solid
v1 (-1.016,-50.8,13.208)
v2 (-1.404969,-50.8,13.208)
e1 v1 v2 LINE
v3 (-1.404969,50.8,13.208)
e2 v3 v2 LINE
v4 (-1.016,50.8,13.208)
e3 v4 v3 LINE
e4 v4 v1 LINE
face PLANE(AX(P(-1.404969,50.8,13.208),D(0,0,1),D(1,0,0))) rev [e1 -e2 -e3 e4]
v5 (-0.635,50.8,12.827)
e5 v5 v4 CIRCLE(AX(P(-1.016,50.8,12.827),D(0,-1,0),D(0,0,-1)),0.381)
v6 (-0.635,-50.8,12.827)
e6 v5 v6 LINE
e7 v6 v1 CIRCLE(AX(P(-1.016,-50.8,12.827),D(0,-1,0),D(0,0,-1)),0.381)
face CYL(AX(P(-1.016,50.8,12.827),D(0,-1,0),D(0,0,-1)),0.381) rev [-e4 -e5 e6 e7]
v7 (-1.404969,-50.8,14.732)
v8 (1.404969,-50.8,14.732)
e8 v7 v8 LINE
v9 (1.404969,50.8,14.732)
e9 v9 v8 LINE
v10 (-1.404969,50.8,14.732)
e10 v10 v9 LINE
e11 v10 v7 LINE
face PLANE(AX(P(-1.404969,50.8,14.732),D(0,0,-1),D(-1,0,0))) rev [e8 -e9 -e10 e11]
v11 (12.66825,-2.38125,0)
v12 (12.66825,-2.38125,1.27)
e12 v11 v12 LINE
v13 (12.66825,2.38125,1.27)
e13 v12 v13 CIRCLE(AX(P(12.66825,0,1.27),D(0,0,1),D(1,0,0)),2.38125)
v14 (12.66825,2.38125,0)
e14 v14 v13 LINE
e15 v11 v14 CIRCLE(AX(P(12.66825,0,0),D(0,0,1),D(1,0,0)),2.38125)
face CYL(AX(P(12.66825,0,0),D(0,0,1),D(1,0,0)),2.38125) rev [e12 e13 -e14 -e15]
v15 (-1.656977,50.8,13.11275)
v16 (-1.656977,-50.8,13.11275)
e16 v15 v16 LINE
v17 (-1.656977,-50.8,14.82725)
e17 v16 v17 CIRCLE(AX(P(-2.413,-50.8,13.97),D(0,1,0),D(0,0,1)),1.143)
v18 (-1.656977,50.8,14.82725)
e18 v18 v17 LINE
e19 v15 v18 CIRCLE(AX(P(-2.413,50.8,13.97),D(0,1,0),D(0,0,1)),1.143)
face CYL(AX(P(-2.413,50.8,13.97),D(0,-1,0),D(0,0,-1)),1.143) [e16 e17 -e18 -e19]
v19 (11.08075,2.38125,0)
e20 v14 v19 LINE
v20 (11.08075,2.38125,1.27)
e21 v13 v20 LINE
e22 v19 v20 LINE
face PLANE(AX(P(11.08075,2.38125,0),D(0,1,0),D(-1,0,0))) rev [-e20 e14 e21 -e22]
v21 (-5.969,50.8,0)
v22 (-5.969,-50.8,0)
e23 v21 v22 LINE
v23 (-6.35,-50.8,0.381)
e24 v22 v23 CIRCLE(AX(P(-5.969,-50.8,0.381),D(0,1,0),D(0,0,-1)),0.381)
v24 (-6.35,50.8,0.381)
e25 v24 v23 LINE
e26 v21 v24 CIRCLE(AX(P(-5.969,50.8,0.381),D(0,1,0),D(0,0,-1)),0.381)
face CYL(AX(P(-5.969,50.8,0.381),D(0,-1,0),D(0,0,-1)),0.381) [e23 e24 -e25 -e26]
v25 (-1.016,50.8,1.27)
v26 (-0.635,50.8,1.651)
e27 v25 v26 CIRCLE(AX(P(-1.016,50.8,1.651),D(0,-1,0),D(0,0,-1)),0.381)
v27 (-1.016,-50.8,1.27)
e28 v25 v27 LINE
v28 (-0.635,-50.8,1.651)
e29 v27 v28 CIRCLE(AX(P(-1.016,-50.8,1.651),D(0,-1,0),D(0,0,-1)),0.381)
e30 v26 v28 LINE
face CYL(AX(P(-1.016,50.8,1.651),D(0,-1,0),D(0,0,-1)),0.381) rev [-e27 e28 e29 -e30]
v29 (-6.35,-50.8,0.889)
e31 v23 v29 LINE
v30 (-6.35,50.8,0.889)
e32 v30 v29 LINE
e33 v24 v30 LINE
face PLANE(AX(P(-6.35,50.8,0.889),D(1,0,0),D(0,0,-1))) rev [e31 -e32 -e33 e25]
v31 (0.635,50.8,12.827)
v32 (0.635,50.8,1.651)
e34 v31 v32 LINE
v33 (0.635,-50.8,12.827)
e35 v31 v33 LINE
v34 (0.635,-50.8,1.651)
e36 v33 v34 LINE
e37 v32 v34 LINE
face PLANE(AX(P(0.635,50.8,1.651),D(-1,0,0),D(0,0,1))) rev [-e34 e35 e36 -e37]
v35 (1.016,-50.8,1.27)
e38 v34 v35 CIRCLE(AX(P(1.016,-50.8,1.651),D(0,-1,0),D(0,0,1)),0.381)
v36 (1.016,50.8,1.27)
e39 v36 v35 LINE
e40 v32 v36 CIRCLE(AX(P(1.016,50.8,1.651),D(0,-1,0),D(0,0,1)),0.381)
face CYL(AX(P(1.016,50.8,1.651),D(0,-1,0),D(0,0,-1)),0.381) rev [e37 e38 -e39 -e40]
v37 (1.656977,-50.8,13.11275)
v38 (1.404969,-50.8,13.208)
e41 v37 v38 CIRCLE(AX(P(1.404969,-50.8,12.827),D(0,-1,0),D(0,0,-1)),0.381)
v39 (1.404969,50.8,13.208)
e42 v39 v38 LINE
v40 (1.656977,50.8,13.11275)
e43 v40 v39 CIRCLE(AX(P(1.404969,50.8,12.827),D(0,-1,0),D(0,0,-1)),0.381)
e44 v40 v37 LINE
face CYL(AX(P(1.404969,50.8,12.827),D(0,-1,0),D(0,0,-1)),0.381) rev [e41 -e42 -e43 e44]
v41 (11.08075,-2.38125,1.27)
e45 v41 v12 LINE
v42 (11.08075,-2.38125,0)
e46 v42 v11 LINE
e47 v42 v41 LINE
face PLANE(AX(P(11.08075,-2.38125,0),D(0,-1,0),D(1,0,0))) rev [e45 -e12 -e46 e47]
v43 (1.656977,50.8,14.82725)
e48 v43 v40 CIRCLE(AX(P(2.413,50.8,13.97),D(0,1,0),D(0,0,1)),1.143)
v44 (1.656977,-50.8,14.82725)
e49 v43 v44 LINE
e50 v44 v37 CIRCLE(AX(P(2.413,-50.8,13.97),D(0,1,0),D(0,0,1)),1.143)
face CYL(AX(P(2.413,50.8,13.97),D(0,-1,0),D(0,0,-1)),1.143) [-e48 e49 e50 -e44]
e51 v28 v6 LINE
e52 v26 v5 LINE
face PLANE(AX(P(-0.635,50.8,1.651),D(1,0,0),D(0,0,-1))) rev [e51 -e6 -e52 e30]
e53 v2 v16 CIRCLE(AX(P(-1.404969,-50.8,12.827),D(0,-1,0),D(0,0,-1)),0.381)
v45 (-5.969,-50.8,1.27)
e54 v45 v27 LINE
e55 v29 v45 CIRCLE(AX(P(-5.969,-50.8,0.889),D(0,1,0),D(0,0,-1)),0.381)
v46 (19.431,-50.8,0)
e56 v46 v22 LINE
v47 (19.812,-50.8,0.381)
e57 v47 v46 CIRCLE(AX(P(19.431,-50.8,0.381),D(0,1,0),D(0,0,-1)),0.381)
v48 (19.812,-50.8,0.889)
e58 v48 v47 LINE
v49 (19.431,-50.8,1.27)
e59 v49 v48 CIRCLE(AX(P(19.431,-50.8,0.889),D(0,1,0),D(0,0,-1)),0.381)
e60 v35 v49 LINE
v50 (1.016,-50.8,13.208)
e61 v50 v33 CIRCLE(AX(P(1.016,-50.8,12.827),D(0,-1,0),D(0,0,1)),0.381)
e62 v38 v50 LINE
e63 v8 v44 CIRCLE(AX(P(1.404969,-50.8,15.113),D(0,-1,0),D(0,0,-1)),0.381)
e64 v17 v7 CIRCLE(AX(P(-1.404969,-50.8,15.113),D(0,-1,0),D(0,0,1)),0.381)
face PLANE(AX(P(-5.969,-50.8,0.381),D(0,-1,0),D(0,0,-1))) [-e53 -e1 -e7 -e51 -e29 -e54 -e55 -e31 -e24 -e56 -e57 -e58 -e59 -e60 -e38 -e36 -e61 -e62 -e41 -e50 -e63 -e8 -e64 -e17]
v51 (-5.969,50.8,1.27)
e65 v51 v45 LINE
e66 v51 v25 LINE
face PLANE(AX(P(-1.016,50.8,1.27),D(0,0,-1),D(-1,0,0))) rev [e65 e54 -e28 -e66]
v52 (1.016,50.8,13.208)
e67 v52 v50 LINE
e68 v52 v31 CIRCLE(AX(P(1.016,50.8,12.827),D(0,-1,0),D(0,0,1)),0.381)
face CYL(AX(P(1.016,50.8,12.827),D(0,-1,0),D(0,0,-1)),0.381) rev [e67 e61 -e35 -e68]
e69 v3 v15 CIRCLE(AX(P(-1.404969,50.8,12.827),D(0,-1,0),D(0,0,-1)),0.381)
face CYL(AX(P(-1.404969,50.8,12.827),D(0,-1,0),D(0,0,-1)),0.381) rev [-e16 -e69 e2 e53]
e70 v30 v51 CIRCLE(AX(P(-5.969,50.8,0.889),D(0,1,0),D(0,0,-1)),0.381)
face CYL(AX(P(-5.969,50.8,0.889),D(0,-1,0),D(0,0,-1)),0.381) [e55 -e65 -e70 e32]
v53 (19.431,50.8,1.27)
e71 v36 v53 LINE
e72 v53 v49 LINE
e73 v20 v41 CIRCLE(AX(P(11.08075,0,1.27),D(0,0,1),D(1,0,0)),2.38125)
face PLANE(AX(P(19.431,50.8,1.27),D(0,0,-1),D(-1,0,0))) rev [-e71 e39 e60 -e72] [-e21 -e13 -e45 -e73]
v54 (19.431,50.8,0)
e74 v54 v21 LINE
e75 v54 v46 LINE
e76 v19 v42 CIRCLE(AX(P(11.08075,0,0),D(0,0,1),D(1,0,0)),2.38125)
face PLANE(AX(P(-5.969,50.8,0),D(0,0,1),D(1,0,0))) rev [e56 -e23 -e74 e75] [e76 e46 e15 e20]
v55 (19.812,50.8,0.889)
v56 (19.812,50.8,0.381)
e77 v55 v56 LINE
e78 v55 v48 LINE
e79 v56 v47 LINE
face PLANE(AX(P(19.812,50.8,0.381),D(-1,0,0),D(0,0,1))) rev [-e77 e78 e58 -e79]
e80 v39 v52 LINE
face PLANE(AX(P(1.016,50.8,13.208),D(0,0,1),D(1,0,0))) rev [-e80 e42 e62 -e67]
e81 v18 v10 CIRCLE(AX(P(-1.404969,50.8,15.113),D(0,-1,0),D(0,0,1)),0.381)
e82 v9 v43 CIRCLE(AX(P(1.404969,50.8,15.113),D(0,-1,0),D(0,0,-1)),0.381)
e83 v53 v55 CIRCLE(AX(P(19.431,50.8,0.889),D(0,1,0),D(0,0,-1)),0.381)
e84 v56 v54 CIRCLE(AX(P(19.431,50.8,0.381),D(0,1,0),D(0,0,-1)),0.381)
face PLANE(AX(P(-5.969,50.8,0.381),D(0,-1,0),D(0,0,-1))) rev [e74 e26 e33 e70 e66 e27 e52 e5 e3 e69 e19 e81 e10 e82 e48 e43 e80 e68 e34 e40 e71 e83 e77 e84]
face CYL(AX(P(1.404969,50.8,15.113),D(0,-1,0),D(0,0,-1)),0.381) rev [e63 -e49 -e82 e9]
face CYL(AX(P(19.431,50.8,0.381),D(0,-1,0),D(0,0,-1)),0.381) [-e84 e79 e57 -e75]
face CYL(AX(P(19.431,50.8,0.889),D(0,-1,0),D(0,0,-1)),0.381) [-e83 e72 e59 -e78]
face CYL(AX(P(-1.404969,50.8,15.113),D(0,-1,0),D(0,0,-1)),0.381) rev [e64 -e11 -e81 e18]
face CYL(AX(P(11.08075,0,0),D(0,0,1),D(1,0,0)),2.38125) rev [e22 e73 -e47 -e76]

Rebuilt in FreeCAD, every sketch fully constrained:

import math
import FreeCAD as App
import Part
import Sketcher

V = App.Vector
Q = App.Units.Quantity

doc = App.newDocument("Part")
body = doc.addObject("PartDesign::Body", "Body")

# Sketch on XZ plane
sketch1 = body.newObject("Sketcher::SketchObject", "Sketch")
sketch1.AttachmentSupport = (doc.getObject("XZ_Plane"), [""])
sketch1.MapMode = "FlatFace"
sketch1.addGeometry(Part.LineSegment(V(19.431, 0, 0), V(-5.969, 0, 0)), False)
sketch1.addGeometry(Part.ArcOfCircle(Part.Circle(V(-5.969, 0.381, 0), V(0, 0, 1), 0.381), math.radians(180), math.radians(270)), False)
sketch1.addGeometry(Part.LineSegment(V(-6.35, 0.381, 0), V(-6.35, 0.889, 0)), False)
sketch1.addGeometry(Part.ArcOfCircle(Part.Circle(V(-5.969, 0.889, 0), V(0, 0, 1), 0.381), math.radians(90), math.radians(180)), False)
sketch1.addGeometry(Part.LineSegment(V(-5.969, 1.27, 0), V(-1.016, 1.27, 0)), False)
sketch1.addGeometry(Part.ArcOfCircle(Part.Circle(V(-1.016, 1.651, 0), V(0, 0, 1), 0.381), math.radians(-90), math.radians(0)), False)
sketch1.addGeometry(Part.LineSegment(V(-0.635, 1.651, 0), V(-0.635, 12.827, 0)), False)
sketch1.addGeometry(Part.ArcOfCircle(Part.Circle(V(-1.016, 12.827, 0), V(0, 0, 1), 0.381), math.radians(0), math.radians(90)), False)
sketch1.addGeometry(Part.LineSegment(V(-1.016, 13.208, 0), V(-1.404969, 13.208, 0)), False)
sketch1.addGeometry(Part.ArcOfCircle(Part.Circle(V(-1.404969, 12.827, 0), V(0, 0, 1), 0.381), math.radians(90), math.radians(131.409622)), False)
sketch1.addGeometry(Part.ArcOfCircle(Part.Circle(V(-2.413, 13.97, 0), V(0, 0, 1), 1.143), math.radians(48.590378), math.radians(311.409622)), False)
sketch1.addGeometry(Part.ArcOfCircle(Part.Circle(V(-1.404969, 15.113, 0), V(0, 0, 1), 0.381), math.radians(-131.409622), math.radians(-90)), False)
sketch1.addGeometry(Part.LineSegment(V(-1.404969, 14.732, 0), V(1.404969, 14.732, 0)), False)
sketch1.addGeometry(Part.ArcOfCircle(Part.Circle(V(1.404969, 15.113, 0), V(0, 0, 1), 0.381), math.radians(-90), math.radians(-48.590378)), False)
sketch1.addGeometry(Part.ArcOfCircle(Part.Circle(V(2.413, 13.97, 0), V(0, 0, 1), 1.143), math.radians(-131.409622), math.radians(131.409622)), False)
sketch1.addGeometry(Part.ArcOfCircle(Part.Circle(V(1.404969, 12.827, 0), V(0, 0, 1), 0.381), math.radians(48.590378), math.radians(90)), False)
sketch1.addGeometry(Part.LineSegment(V(1.404969, 13.208, 0), V(1.016, 13.208, 0)), False)
sketch1.addGeometry(Part.ArcOfCircle(Part.Circle(V(1.016, 12.827, 0), V(0, 0, 1), 0.381), math.radians(90), math.radians(180)), False)
sketch1.addGeometry(Part.LineSegment(V(0.635, 12.827, 0), V(0.635, 1.651, 0)), False)
sketch1.addGeometry(Part.ArcOfCircle(Part.Circle(V(1.016, 1.651, 0), V(0, 0, 1), 0.381), math.radians(180), math.radians(270)), False)
sketch1.addGeometry(Part.LineSegment(V(1.016, 1.27, 0), V(19.431, 1.27, 0)), False)
sketch1.addGeometry(Part.ArcOfCircle(Part.Circle(V(19.431, 0.889, 0), V(0, 0, 1), 0.381), math.radians(0), math.radians(90)), False)
sketch1.addGeometry(Part.LineSegment(V(19.812, 0.889, 0), V(19.812, 0.381, 0)), False)
sketch1.addGeometry(Part.ArcOfCircle(Part.Circle(V(19.431, 0.381, 0), V(0, 0, 1), 0.381), math.radians(-90), math.radians(0)), False)
sketch1.addConstraint(Sketcher.Constraint("Tangent", 0, 2, 1, 2))
sketch1.addConstraint(Sketcher.Constraint("Tangent", 1, 1, 2, 1))
sketch1.addConstraint(Sketcher.Constraint("Tangent", 2, 2, 3, 2))
sketch1.addConstraint(Sketcher.Constraint("Tangent", 3, 1, 4, 1))
sketch1.addConstraint(Sketcher.Constraint("Tangent", 4, 2, 5, 1))
sketch1.addConstraint(Sketcher.Constraint("Tangent", 5, 2, 6, 1))
sketch1.addConstraint(Sketcher.Constraint("Tangent", 6, 2, 7, 1))
sketch1.addConstraint(Sketcher.Constraint("Tangent", 7, 2, 8, 1))
sketch1.addConstraint(Sketcher.Constraint("Tangent", 8, 2, 9, 1))
sketch1.addConstraint(Sketcher.Constraint("Tangent", 9, 2, 10, 2))
sketch1.addConstraint(Sketcher.Constraint("Tangent", 10, 1, 11, 1))
sketch1.addConstraint(Sketcher.Constraint("Tangent", 11, 2, 12, 1))
sketch1.addConstraint(Sketcher.Constraint("Tangent", 12, 2, 13, 1))
sketch1.addConstraint(Sketcher.Constraint("Tangent", 13, 2, 14, 2))
sketch1.addConstraint(Sketcher.Constraint("Tangent", 14, 1, 15, 1))
sketch1.addConstraint(Sketcher.Constraint("Tangent", 15, 2, 16, 1))
sketch1.addConstraint(Sketcher.Constraint("Tangent", 16, 2, 17, 1))
sketch1.addConstraint(Sketcher.Constraint("Tangent", 17, 2, 18, 1))
sketch1.addConstraint(Sketcher.Constraint("Tangent", 18, 2, 19, 1))
sketch1.addConstraint(Sketcher.Constraint("Tangent", 19, 2, 20, 1))
sketch1.addConstraint(Sketcher.Constraint("Tangent", 20, 2, 21, 2))
sketch1.addConstraint(Sketcher.Constraint("Tangent", 21, 1, 22, 1))
sketch1.addConstraint(Sketcher.Constraint("Tangent", 22, 2, 23, 2))
sketch1.addConstraint(Sketcher.Constraint("Tangent", 23, 1, 0, 1))
sketch1.addConstraint(Sketcher.Constraint("Horizontal", 0))
sketch1.addConstraint(Sketcher.Constraint("Vertical", 2))
sketch1.addConstraint(Sketcher.Constraint("Horizontal", 4))
sketch1.addConstraint(Sketcher.Constraint("Vertical", 6))
sketch1.addConstraint(Sketcher.Constraint("Horizontal", 8))
sketch1.addConstraint(Sketcher.Constraint("Horizontal", 12))
sketch1.addConstraint(Sketcher.Constraint("Horizontal", 16))
sketch1.addConstraint(Sketcher.Constraint("Vertical", 18))
sketch1.addConstraint(Sketcher.Constraint("Horizontal", 20))
sketch1.addConstraint(Sketcher.Constraint("Vertical", 22))
sketch1.addConstraint(Sketcher.Constraint("Equal", 1, 3))
sketch1.addConstraint(Sketcher.Constraint("Equal", 3, 5))
sketch1.addConstraint(Sketcher.Constraint("Equal", 5, 7))
sketch1.addConstraint(Sketcher.Constraint("Equal", 7, 9))
sketch1.addConstraint(Sketcher.Constraint("Equal", 9, 11))
sketch1.addConstraint(Sketcher.Constraint("Equal", 11, 13))
sketch1.addConstraint(Sketcher.Constraint("Equal", 10, 14))
sketch1.addConstraint(Sketcher.Constraint("Equal", 13, 15))
sketch1.addConstraint(Sketcher.Constraint("Equal", 15, 17))
sketch1.addConstraint(Sketcher.Constraint("Equal", 17, 19))
sketch1.addConstraint(Sketcher.Constraint("Equal", 19, 21))
sketch1.addConstraint(Sketcher.Constraint("Equal", 21, 23))
sketch1.addConstraint(Sketcher.Constraint("Symmetric", 10, 3, 14, 3, -2))
sketch1.addConstraint(Sketcher.Constraint("Symmetric", 7, 3, 17, 3, -2))
sketch1.addConstraint(Sketcher.Constraint("PointOnObject", 0, 2, -1))
sketch1.addConstraint(Sketcher.Constraint("Horizontal", 5, 3, 19, 3))
sketch1.addConstraint(Sketcher.Constraint("Vertical", 9, 3, 11, 3))
sketch1.addConstraint(Sketcher.Constraint("DistanceX", 0, 2, 0, 1, Q("1 in")))
sketch1.addConstraint(Sketcher.Constraint("Radius", 1, Q("0.015 in")))
sketch1.addConstraint(Sketcher.Constraint("Radius", 10, Q("0.045 in")))
sketch1.addConstraint(Sketcher.Constraint("DistanceY", 2, 1, 2, 2, Q("0.02 in")))
sketch1.addConstraint(Sketcher.Constraint("DistanceY", 6, 1, 6, 2, Q("0.44 in")))
sketch1.addConstraint(Sketcher.Constraint("DistanceX", 4, 1, 4, 2, Q("0.195 in")))
sketch1.addConstraint(Sketcher.Constraint("DistanceX", 20, 1, 20, 2, Q("0.725 in")))
sketch1.addConstraint(Sketcher.Constraint("DistanceY", -1, 1, 10, 3, Q("0.55 in")))
sketch1.addConstraint(Sketcher.Constraint("DistanceX", 3, 3, 10, 3, Q("0.14 in")))
pad1 = body.newObject("PartDesign::Pad", "Pad")
pad1.Profile = sketch1
pad1.Length = Q("4 in")
pad1.Midplane = True

# Sketch on XY plane
sketch2 = body.newObject("Sketcher::SketchObject", "Sketch001")
sketch2.AttachmentSupport = (doc.getObject("XY_Plane"), [""])
sketch2.MapMode = "FlatFace"
sketch2.AttachmentOffset = App.Placement(V(0, 0, 0.05 * 25.4), App.Rotation())
sketch2.addGeometry(Part.LineSegment(V(12.66825, 2.38125, 0), V(11.08075, 2.38125, 0)), False)
sketch2.addGeometry(Part.ArcOfCircle(Part.Circle(V(11.08075, 0, 0), V(0, 0, 1), 2.38125), math.radians(90), math.radians(270)), False)
sketch2.addGeometry(Part.LineSegment(V(11.08075, -2.38125, 0), V(12.66825, -2.38125, 0)), False)
sketch2.addGeometry(Part.ArcOfCircle(Part.Circle(V(12.66825, 0, 0), V(0, 0, 1), 2.38125), math.radians(-90), math.radians(90)), False)
sketch2.addConstraint(Sketcher.Constraint("Tangent", 0, 2, 1, 1))
sketch2.addConstraint(Sketcher.Constraint("Tangent", 1, 2, 2, 1))
sketch2.addConstraint(Sketcher.Constraint("Tangent", 2, 2, 3, 1))
sketch2.addConstraint(Sketcher.Constraint("Tangent", 3, 2, 0, 1))
sketch2.addConstraint(Sketcher.Constraint("Horizontal", 0))
sketch2.addConstraint(Sketcher.Constraint("Horizontal", 2))
sketch2.addConstraint(Sketcher.Constraint("PointOnObject", 1, 3, -1))
sketch2.addConstraint(Sketcher.Constraint("Radius", 1, Q("0.09375 in")))
sketch2.addConstraint(Sketcher.Constraint("DistanceX", 0, 2, 0, 1, Q("0.0625 in")))
sketch2.addConstraint(Sketcher.Constraint("DistanceX", -1, 1, 1, 3, 11.08075))
pocket1 = body.newObject("PartDesign::Pocket", "Pocket")
pocket1.Profile = sketch2
pocket1.Type = "ThroughAll"

doc.recompute()
